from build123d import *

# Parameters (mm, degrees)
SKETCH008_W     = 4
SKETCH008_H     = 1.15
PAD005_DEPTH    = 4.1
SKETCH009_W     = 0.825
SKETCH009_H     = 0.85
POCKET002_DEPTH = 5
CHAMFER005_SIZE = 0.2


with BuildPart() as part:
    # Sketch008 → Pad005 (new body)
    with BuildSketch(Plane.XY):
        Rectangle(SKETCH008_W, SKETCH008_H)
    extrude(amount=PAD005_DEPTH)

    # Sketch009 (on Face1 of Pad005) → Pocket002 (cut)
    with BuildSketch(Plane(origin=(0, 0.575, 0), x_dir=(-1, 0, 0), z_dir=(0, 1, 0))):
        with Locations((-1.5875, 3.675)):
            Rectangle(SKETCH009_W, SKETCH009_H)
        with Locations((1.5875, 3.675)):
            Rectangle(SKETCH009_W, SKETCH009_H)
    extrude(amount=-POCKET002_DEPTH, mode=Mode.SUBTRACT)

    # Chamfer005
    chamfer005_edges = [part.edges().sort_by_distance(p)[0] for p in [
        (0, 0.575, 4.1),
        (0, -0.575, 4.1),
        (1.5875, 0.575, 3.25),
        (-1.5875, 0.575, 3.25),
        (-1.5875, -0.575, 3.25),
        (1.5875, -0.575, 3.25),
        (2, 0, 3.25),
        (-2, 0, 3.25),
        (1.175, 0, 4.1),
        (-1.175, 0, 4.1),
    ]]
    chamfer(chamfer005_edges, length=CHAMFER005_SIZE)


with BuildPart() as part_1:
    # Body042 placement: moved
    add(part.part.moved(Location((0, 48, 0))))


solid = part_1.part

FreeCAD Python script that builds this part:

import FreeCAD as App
import Part
import Sketcher
from FreeCAD import Vector


def edges_at(feature, points):
    """Names of the edges that pass closest to the given points."""
    edges = feature.Shape.Edges
    near = lambda p: min(range(len(edges)), key=lambda i: edges[i].distToShape(Part.Vertex(*p))[0])
    return sorted({f"Edge{near(p) + 1}" for p in points})


def add_polygon(sketch, points):
    """Adds a closed chain of lines whose ends are joined by coincident constraints."""
    first, n = sketch.GeometryCount, len(points)
    for a, b in zip(points, points[1:] + points[:1]):
        sketch.addGeometry(Part.LineSegment(App.Vector(*a, 0), App.Vector(*b, 0)), False)
    for i in range(n):
        sketch.addConstraint(Sketcher.Constraint("Coincident", first + i, 2, first + (i + 1) % n, 1))

doc = App.newDocument("Part")
body = doc.addObject("PartDesign::Body", "Body")

# Sketch on XY plane
sketch1 = doc.addObject("Sketcher::SketchObject", "Sketch")
body.addObject(sketch1)
sketch1.AttachmentSupport = (doc.XY_Plane, [""])
sketch1.MapMode = "FlatFace"
add_polygon(sketch1, [(-2, 0.6), (-2, -0.6), (2, -0.6), (2, 0.6)])  # lines 0-3
sketch1.addConstraint([
    Sketcher.Constraint("Vertical", 0),
    Sketcher.Constraint("Horizontal", 1),
    Sketcher.Constraint("Vertical", 2),
    Sketcher.Constraint("Horizontal", 3),
    Sketcher.Constraint("Symmetric", 0, 2, 2, 2, -1, 1),
    Sketcher.Constraint("DistanceX", 1, 1, 1, 2, 4.0),
    Sketcher.Constraint("DistanceY", 0, 2, 0, 1, 1.15),
])
pad1 = doc.addObject("PartDesign::Pad", "Pad")
body.addObject(pad1)
pad1.Profile = sketch1
pad1.Length = 4.1

# Sketch on XZ plane
sketch2 = doc.addObject("Sketcher::SketchObject", "Sketch001")
body.addObject(sketch2)
sketch2.AttachmentSupport = (doc.XZ_Plane, [""])
sketch2.MapMode = "FlatFace"
sketch2.AttachmentOffset = App.Placement(Vector(0, 0, -0.575), App.Rotation())
add_polygon(sketch2, [(2, 4.1), (2, 3.2), (1.2, 3.2), (1.2, 4.1)])  # lines 0-3
add_polygon(sketch2, [(-1.2, 4.1), (-1.2, 3.2), (-2, 3.2), (-2, 4.1)])  # lines 4-7
sketch2.addConstraint([
    Sketcher.Constraint("Vertical", 0),
    Sketcher.Constraint("Horizontal", 1),
    Sketcher.Constraint("Vertical", 2),
    Sketcher.Constraint("Horizontal", 3),
    Sketcher.Constraint("Vertical", 4),
    Sketcher.Constraint("Horizontal", 5),
    Sketcher.Constraint("Vertical", 6),
    Sketcher.Constraint("Horizontal", 7),
    Sketcher.Constraint("Symmetric", 1, 2, 4, 2, -2),
    Sketcher.Constraint("Symmetric", 3, 2, 6, 2, -2),
    Sketcher.Constraint("DistanceX", -1, 1, 0, 2, 2.0),
    Sketcher.Constraint("DistanceY", 0, 2, 0, 1, 0.85),
    Sketcher.Constraint("DistanceY", -1, 1, 2, 2, 4.1),
    Sketcher.Constraint("DistanceX", 1, 2, 1, 1, 0.825),
])
pocket1 = doc.addObject("PartDesign::Pocket", "Pocket")
body.addObject(pocket1)
pocket1.Profile = sketch2
pocket1.Length = 5
pocket1.Reversed = True
doc.recompute()

chamfer = doc.addObject("PartDesign::Chamfer", "Chamfer")
body.addObject(chamfer)
chamfer.Base = (pocket1, edges_at(pocket1, [
    (0, 0.575, 4.1),
    (0, -0.575, 4.1),
    (1.587, 0.575, 3.25),
    (-1.587, 0.575, 3.25),
    (-1.587, -0.575, 3.25),
    (1.587, -0.575, 3.25),
    (2, 0, 3.25),
    (-2, 0, 3.25),
    (1.175, 0, 4.1),
    (-1.175, 0, 4.1),
]))
chamfer.Size = 0.2
body2 = doc.addObject("PartDesign::Body", "Body001")
doc.recompute()

body.Placement = App.Placement(Vector(0, 48, 0), App.Rotation(Vector(0, 0, 1), 0))
boolean = doc.addObject("PartDesign::Boolean", "Boolean")
body2.addObject(boolean)
boolean.Type = "Fuse"
boolean.addObjects([body])

doc.recompute()
